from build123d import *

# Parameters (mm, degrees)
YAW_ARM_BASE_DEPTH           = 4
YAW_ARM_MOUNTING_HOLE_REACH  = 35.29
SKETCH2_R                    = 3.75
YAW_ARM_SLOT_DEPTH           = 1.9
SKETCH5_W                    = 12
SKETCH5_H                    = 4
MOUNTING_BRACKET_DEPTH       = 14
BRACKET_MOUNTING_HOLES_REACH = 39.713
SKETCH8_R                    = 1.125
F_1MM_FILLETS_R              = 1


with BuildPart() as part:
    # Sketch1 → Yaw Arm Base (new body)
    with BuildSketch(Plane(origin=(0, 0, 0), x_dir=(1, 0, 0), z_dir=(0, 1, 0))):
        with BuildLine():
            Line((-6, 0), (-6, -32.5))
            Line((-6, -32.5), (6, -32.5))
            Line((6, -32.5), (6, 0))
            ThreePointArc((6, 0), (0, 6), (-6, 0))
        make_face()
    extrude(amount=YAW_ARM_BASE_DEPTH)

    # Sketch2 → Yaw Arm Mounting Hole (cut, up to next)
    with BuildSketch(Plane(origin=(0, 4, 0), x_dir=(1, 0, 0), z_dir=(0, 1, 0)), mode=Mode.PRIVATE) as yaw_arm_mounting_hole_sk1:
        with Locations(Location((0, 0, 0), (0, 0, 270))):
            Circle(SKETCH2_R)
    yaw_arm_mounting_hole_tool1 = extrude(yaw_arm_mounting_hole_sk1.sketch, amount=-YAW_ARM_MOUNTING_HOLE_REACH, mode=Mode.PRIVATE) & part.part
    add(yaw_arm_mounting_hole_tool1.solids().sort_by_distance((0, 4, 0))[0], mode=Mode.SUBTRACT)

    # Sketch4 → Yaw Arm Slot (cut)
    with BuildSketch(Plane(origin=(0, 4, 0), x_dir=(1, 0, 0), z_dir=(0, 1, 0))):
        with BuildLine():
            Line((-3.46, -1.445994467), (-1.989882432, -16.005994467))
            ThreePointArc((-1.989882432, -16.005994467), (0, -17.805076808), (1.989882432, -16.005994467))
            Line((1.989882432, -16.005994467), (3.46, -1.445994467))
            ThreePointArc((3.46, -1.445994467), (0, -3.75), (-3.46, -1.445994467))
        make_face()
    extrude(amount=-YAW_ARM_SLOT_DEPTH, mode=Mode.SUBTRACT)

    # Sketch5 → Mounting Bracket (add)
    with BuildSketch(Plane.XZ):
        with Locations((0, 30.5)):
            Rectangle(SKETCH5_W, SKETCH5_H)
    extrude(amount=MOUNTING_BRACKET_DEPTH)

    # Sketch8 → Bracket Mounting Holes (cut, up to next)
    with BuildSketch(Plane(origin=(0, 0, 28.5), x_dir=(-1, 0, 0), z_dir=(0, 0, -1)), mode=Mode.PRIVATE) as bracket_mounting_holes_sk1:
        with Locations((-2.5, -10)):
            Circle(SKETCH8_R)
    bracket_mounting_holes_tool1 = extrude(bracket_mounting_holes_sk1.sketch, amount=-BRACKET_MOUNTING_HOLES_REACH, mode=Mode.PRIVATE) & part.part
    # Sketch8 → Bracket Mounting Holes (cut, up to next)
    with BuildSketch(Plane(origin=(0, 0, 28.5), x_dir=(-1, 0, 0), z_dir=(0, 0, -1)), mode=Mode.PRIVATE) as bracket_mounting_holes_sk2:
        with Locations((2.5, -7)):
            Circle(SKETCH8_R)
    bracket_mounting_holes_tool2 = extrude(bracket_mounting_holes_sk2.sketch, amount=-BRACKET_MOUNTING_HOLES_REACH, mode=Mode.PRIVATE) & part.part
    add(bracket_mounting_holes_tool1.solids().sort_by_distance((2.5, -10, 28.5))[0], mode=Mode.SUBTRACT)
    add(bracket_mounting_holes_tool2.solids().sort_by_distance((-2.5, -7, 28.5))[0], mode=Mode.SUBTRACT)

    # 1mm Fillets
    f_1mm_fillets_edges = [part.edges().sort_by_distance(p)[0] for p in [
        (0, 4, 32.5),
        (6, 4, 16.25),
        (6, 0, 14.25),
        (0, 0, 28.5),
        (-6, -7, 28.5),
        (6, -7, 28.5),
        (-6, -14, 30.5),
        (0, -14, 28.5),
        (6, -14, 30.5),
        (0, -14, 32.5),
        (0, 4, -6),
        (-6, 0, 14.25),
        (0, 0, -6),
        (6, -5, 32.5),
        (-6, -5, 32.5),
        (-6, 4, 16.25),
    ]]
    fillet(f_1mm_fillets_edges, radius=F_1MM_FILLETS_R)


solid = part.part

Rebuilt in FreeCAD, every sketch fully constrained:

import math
import FreeCAD as App
import Part
import Sketcher

V = App.Vector


def edges_at(feature, points):
    """Names of the edges that pass closest to the given points."""
    edges = feature.Shape.Edges
    near = lambda p: min(range(len(edges)), key=lambda i: edges[i].distToShape(Part.Vertex(*p))[0])
    return sorted({f"Edge{near(p) + 1}" for p in points})

doc = App.newDocument("Part")
params = doc.addObject("Spreadsheet::Sheet", "Params")
for row, (alias, value) in enumerate([
    ("sketch1_radius", "6 mm"),
    ("sketch1_height", "32.5 mm"),
    ("pad1_length", "4 mm"),
    ("sketch2_diameter", "7.5 mm"),
    ("sketch3_radius", "2 mm"),
    ("sketch3_radius2", "3.75 mm"),
    ("pocket2_length", "1.9 mm"),
    ("sketch4_width", "12 mm"),
    ("sketch4_height", "4 mm"),
    ("pad2_length", "14 mm"),
    ("sketch5_diameter", "2.25 mm"),
    ("sketch6_diameter", "2.25 mm"),
    ("fillet_radius", "1 mm"),
], start=1):
    params.set(f"A{row}", alias)
    params.set(f"B{row}", "=" + value)
    params.setAlias(f"B{row}", alias)

body = doc.addObject("PartDesign::Body", "Body")

# Sketch on XZ plane
sketch1 = doc.addObject("Sketcher::SketchObject", "Sketch")
body.addObject(sketch1)
sketch1.AttachmentSupport = (doc.XZ_Plane, [""])
sketch1.MapMode = "FlatFace"
sketch1.addGeometry([
    Part.LineSegment(V(-6, 0, 0), V(-6, 32.5, 0)),
    Part.LineSegment(V(-6, 32.5, 0), V(6, 32.5, 0)),
    Part.LineSegment(V(6, 32.5, 0), V(6, 0, 0)),
    Part.ArcOfCircle(Part.Circle(V(0, 0, 0), V(0, 0, 1), 6), math.radians(180), math.radians(360)),
], False)
sketch1.addConstraint([
    Sketcher.Constraint("Coincident", 0, 2, 1, 1),
    Sketcher.Constraint("Coincident", 1, 2, 2, 1),
    Sketcher.Constraint("Tangent", 2, 2, 3, 2),
    Sketcher.Constraint("Tangent", 3, 1, 0, 1),
    Sketcher.Constraint("Vertical", 0),
    Sketcher.Constraint("Horizontal", 1),
    Sketcher.Constraint("Vertical", 2),
    Sketcher.Constraint("Coincident", 3, 3, -1, 1),
    Sketcher.Constraint("Radius", 3, 6.0),
    Sketcher.Constraint("DistanceY", 0, 1, 0, 2, 32.5),
])
sketch1.setExpression("Constraints[8]", "Params.sketch1_radius")
sketch1.setExpression("Constraints[9]", "Params.sketch1_height")
pad1 = doc.addObject("PartDesign::Pad", "Pad")
body.addObject(pad1)
pad1.Profile = sketch1
pad1.setExpression("Length", "Params.pad1_length")
pad1.Reversed = True

# Sketch on XZ plane
sketch2 = doc.addObject("Sketcher::SketchObject", "Sketch001")
body.addObject(sketch2)
sketch2.AttachmentSupport = (doc.XZ_Plane, [""])
sketch2.MapMode = "FlatFace"
sketch2.AttachmentOffset = App.Placement(V(0, 0, -4), App.Rotation())
sketch2.addGeometry(Part.Circle(V(0, 0, 0), V(0, 0, 1), 3.75), False)
sketch2.addConstraint([
    Sketcher.Constraint("Coincident", 0, 3, -1, 1),
    Sketcher.Constraint("Diameter", 0, 7.5),
])
sketch2.setExpression("Constraints[1]", "Params.sketch2_diameter")
pocket1 = doc.addObject("PartDesign::Pocket", "Pocket")
body.addObject(pocket1)
pocket1.Profile = sketch2
pocket1.Type = "UpToFirst"
pocket1.Reversed = True

# Sketch on XZ plane
sketch3 = doc.addObject("Sketcher::SketchObject", "Sketch002")
body.addObject(sketch3)
sketch3.AttachmentSupport = (doc.XZ_Plane, [""])
sketch3.MapMode = "FlatFace"
sketch3.AttachmentOffset = App.Placement(V(0, 0, -4), App.Rotation())
sketch3.addGeometry([
    Part.LineSegment(V(-3.46, 1.445994, 0), V(-1.989882, 16.005994, 0)),
    Part.ArcOfCircle(Part.Circle(V(0, 15.805077, 0), V(0, 0, 1), 2), math.radians(5.765593), math.radians(174.234407)),
    Part.LineSegment(V(1.989882, 16.005994, 0), V(3.46, 1.445994, 0)),
    Part.ArcOfCircle(Part.Circle(V(0, 0, 0), V(0, 0, 1), 3.75), math.radians(22.680902), math.radians(157.319098)),
], False)
sketch3.addConstraint([
    Sketcher.Constraint("Tangent", 0, 2, 1, 2),
    Sketcher.Constraint("Tangent", 1, 1, 2, 1),
    Sketcher.Constraint("Coincident", 2, 2, 3, 1),
    Sketcher.Constraint("Coincident", 3, 2, 0, 1),
    Sketcher.Constraint("Coincident", 3, 3, -1, 1),
    Sketcher.Constraint("Symmetric", 0, 2, 1, 1, -2),
    Sketcher.Constraint("Radius", 1, 2.0),
    Sketcher.Constraint("Radius", 3, 3.75),
    Sketcher.Constraint("DistanceX", -1, 1, 2, 2, 3.46),
    Sketcher.Constraint("DistanceY", 2, 2, 1, 1, 14.56),
])
sketch3.setExpression("Constraints[6]", "Params.sketch3_radius")
sketch3.setExpression("Constraints[7]", "Params.sketch3_radius2")
pocket2 = doc.addObject("PartDesign::Pocket", "Pocket001")
body.addObject(pocket2)
pocket2.Profile = sketch3
pocket2.setExpression("Length", "Params.pocket2_length")
pocket2.Reversed = True

# Sketch on XZ plane
sketch4 = doc.addObject("Sketcher::SketchObject", "Sketch003")
body.addObject(sketch4)
sketch4.AttachmentSupport = (doc.XZ_Plane, [""])
sketch4.MapMode = "FlatFace"
sketch4.addGeometry([
    Part.LineSegment(V(-6, 32.5, 0), V(-6, 28.5, 0)),
    Part.LineSegment(V(-6, 28.5, 0), V(6, 28.5, 0)),
    Part.LineSegment(V(6, 28.5, 0), V(6, 32.5, 0)),
    Part.LineSegment(V(6, 32.5, 0), V(-6, 32.5, 0)),
], False)
sketch4.addConstraint([
    Sketcher.Constraint("Coincident", 0, 2, 1, 1),
    Sketcher.Constraint("Coincident", 1, 2, 2, 1),
    Sketcher.Constraint("Coincident", 2, 2, 3, 1),
    Sketcher.Constraint("Coincident", 3, 2, 0, 1),
    Sketcher.Constraint("Vertical", 0),
    Sketcher.Constraint("Horizontal", 1),
    Sketcher.Constraint("Vertical", 2),
    Sketcher.Constraint("Horizontal", 3),
    Sketcher.Constraint("DistanceX", 1, 1, 1, 2, 12.0),
    Sketcher.Constraint("DistanceY", 0, 2, 0, 1, 4.0),
    Sketcher.Constraint("DistanceX", 0, 2, -1, 1, 6.0),
    Sketcher.Constraint("DistanceY", -1, 1, 0, 2, 28.5),
])
sketch4.setExpression("Constraints[8]", "Params.sketch4_width")
sketch4.setExpression("Constraints[9]", "Params.sketch4_height")
pad2 = doc.addObject("PartDesign::Pad", "Pad001")
body.addObject(pad2)
pad2.Profile = sketch4
pad2.setExpression("Length", "Params.pad2_length")

# Sketch on XY plane
sketch5 = doc.addObject("Sketcher::SketchObject", "Sketch004")
body.addObject(sketch5)
sketch5.AttachmentSupport = (doc.XY_Plane, [""])
sketch5.MapMode = "FlatFace"
sketch5.AttachmentOffset = App.Placement(V(0, 0, 28.5), App.Rotation())
sketch5.addGeometry(Part.Circle(V(2.5, -10, 0), V(0, 0, 1), 1.125), False)
sketch5.addConstraint([
    Sketcher.Constraint("Diameter", 0, 2.25),
    Sketcher.Constraint("DistanceY", 0, 3, -1, 1, 10.0),
    Sketcher.Constraint("DistanceX", -1, 1, 0, 3, 2.5),
])
sketch5.setExpression("Constraints[0]", "Params.sketch5_diameter")
pocket3 = doc.addObject("PartDesign::Pocket", "Pocket002")
body.addObject(pocket3)
pocket3.Profile = sketch5
pocket3.Type = "UpToFirst"
pocket3.Reversed = True

# Sketch on XY plane
sketch6 = doc.addObject("Sketcher::SketchObject", "Sketch005")
body.addObject(sketch6)
sketch6.AttachmentSupport = (doc.XY_Plane, [""])
sketch6.MapMode = "FlatFace"
sketch6.AttachmentOffset = App.Placement(V(0, 0, 28.5), App.Rotation())
sketch6.addGeometry(Part.Circle(V(-2.5, -7, 0), V(0, 0, 1), 1.125), False)
sketch6.addConstraint([
    Sketcher.Constraint("Diameter", 0, 2.25),
    Sketcher.Constraint("DistanceY", 0, 3, -1, 1, 7.0),
    Sketcher.Constraint("DistanceX", 0, 3, -1, 1, 2.5),
])
sketch6.setExpression("Constraints[0]", "Params.sketch6_diameter")
pocket4 = doc.addObject("PartDesign::Pocket", "Pocket003")
body.addObject(pocket4)
pocket4.Profile = sketch6
pocket4.Type = "UpToFirst"
pocket4.Reversed = True
doc.recompute()

fillet = doc.addObject("PartDesign::Fillet", "Fillet")
body.addObject(fillet)
fillet.Base = (pocket4, edges_at(pocket4, [
    (0, 4, 32.5),
    (6, 4, 16.25),
    (6, 0, 14.25),
    (0, 0, 28.5),
    (-6, -7, 28.5),
    (6, -7, 28.5),
    (-6, -14, 30.5),
    (0, -14, 28.5),
    (6, -14, 30.5),
    (0, -14, 32.5),
    (0, 4, -6),
    (-6, 0, 14.25),
    (0, 0, -6),
    (6, -5, 32.5),
    (-6, -5, 32.5),
    (-6, 4, 16.25),
]))
fillet.setExpression("Radius", "Params.fillet_radius")

doc.recompute()
